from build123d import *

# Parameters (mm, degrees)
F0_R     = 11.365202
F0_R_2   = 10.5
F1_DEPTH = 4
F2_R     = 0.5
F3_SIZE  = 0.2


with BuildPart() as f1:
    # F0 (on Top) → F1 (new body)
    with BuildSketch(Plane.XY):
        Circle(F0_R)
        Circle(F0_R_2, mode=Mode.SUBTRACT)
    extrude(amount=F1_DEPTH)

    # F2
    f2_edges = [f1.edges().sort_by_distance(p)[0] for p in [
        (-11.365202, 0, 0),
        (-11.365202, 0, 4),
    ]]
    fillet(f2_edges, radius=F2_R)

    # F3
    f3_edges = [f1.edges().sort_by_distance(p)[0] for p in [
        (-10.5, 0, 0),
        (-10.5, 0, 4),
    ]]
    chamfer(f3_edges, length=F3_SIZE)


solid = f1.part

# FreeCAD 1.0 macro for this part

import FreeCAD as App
import Part
import Sketcher
Q = App.Units.Quantity


def edges_at(feature, points):
    """Names of the edges that pass closest to the given points."""
    edges = feature.Shape.Edges
    near = lambda p: min(range(len(edges)), key=lambda i: edges[i].distToShape(Part.Vertex(*p))[0])
    return sorted({f"Edge{near(p) + 1}" for p in points})

doc = App.newDocument("Part")
body = doc.addObject("PartDesign::Body", "Body")

sketch1 = doc.addObject("Sketcher::SketchObject", "Sketch")
body.addObject(sketch1)
sketch1.AttachmentSupport = (doc.XY_Plane, [""])
sketch1.MapMode = "FlatFace"
sketch1.addGeometry([
    Part.Circle(App.Vector(0, 0, 0), App.Vector(0, 0, 1), 11.365202),
    Part.Circle(App.Vector(0, 0, 0), App.Vector(0, 0, 1), 10.5),
], False)
sketch1.addConstraint([
    Sketcher.Constraint("Coincident", 0, 3, -1, 1),
    Sketcher.Constraint("Coincident", 1, 3, -1, 1),
    Sketcher.Constraint("Diameter", 1, Q("21 mm")),
    Sketcher.Constraint("Diameter", 0, Q("22.730404 mm")),
])
pad1 = doc.addObject("PartDesign::Pad", "Pad")
body.addObject(pad1)
pad1.Profile = sketch1
pad1.Length = 4
doc.recompute()

fillet = doc.addObject("PartDesign::Fillet", "Fillet")
body.addObject(fillet)
fillet.Base = (pad1, edges_at(pad1, [(-11.365, 0, 0), (-11.365, 0, 4)]))
fillet.Radius = 0.5
doc.recompute()

chamfer = doc.addObject("PartDesign::Chamfer", "Chamfer")
body.addObject(chamfer)
chamfer.Base = (fillet, edges_at(fillet, [(-10.5, 0, 0), (-10.5, 0, 4)]))
chamfer.Size = 0.2

doc.recompute()
